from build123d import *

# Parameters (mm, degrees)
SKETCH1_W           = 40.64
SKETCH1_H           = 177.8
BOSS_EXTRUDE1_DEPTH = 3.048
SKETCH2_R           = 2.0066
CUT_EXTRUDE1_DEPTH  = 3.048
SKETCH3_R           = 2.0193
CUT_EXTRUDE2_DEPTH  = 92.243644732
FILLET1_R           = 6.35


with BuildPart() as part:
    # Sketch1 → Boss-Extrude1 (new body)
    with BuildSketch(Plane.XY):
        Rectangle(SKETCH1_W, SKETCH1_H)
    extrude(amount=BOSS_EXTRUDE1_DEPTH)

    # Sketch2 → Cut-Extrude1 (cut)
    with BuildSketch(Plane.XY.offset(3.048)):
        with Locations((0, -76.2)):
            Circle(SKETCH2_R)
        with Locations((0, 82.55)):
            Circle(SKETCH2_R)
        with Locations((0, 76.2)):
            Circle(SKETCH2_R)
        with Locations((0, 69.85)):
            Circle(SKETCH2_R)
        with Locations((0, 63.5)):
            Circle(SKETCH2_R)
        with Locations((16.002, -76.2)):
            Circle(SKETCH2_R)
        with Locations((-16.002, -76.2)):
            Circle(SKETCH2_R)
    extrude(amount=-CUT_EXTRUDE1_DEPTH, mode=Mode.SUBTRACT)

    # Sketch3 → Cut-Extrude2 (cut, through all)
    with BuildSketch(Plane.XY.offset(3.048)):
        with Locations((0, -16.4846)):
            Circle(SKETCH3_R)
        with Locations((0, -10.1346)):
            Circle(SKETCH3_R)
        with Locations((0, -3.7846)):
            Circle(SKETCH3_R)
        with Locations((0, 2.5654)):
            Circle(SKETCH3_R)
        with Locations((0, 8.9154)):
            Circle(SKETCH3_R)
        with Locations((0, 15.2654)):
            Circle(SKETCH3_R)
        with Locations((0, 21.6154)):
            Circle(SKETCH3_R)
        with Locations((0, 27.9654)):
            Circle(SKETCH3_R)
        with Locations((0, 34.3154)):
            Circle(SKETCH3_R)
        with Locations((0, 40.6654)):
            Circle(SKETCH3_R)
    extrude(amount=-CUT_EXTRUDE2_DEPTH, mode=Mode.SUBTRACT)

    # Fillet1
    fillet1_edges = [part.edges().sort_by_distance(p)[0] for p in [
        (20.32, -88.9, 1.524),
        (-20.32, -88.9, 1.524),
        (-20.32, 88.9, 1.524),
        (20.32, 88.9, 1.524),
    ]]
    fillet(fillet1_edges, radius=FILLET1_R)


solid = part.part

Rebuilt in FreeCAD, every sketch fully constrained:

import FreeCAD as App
import Part
import Sketcher

V = App.Vector
Q = App.Units.Quantity


def edges_at(feature, points):
    """Names of the edges that pass closest to the given points."""
    edges = feature.Shape.Edges
    near = lambda p: min(range(len(edges)), key=lambda i: edges[i].distToShape(Part.Vertex(*p))[0])
    return sorted({f"Edge{near(p) + 1}" for p in points})

doc = App.newDocument("Part")
body = doc.addObject("PartDesign::Body", "Body")

# Sketch on XY plane
sketch1 = doc.addObject("Sketcher::SketchObject", "Sketch")
body.addObject(sketch1)
sketch1.AttachmentSupport = (doc.XY_Plane, [""])
sketch1.MapMode = "FlatFace"
sketch1.addGeometry(Part.LineSegment(V(-20.32, 88.9, 0), V(-20.32, -88.9, 0)), False)
sketch1.addGeometry(Part.LineSegment(V(-20.32, -88.9, 0), V(20.32, -88.9, 0)), False)
sketch1.addGeometry(Part.LineSegment(V(20.32, -88.9, 0), V(20.32, 88.9, 0)), False)
sketch1.addGeometry(Part.LineSegment(V(20.32, 88.9, 0), V(-20.32, 88.9, 0)), False)
sketch1.addConstraint(Sketcher.Constraint("Coincident", 0, 2, 1, 1))
sketch1.addConstraint(Sketcher.Constraint("Coincident", 1, 2, 2, 1))
sketch1.addConstraint(Sketcher.Constraint("Coincident", 2, 2, 3, 1))
sketch1.addConstraint(Sketcher.Constraint("Coincident", 3, 2, 0, 1))
sketch1.addConstraint(Sketcher.Constraint("Vertical", 0))
sketch1.addConstraint(Sketcher.Constraint("Horizontal", 1))
sketch1.addConstraint(Sketcher.Constraint("Vertical", 2))
sketch1.addConstraint(Sketcher.Constraint("Horizontal", 3))
sketch1.addConstraint(Sketcher.Constraint("Symmetric", 0, 2, 2, 2, -1, 1))
sketch1.addConstraint(Sketcher.Constraint("DistanceY", 0, 2, 0, 1, Q("7 in")))
sketch1.addConstraint(Sketcher.Constraint("DistanceX", 1, 1, 1, 2, Q("1.6 in")))
pad1 = doc.addObject("PartDesign::Pad", "Pad")
body.addObject(pad1)
pad1.Profile = sketch1
pad1.Length = Q("0.12 in")

# Sketch on XY plane
sketch2 = doc.addObject("Sketcher::SketchObject", "Sketch001")
body.addObject(sketch2)
sketch2.AttachmentSupport = (doc.XY_Plane, [""])
sketch2.MapMode = "FlatFace"
sketch2.AttachmentOffset = App.Placement(V(0, 0, 0.12 * 25.4), App.Rotation())
sketch2.addGeometry(Part.Circle(V(0, -76.2, 0), V(0, 0, 1), 2.0066), False)
sketch2.addGeometry(Part.Circle(V(0, 82.55, 0), V(0, 0, 1), 2.0066), False)
sketch2.addGeometry(Part.Circle(V(0, 76.2, 0), V(0, 0, 1), 2.0066), False)
sketch2.addGeometry(Part.Circle(V(0, 69.85, 0), V(0, 0, 1), 2.0066), False)
sketch2.addGeometry(Part.Circle(V(0, 63.5, 0), V(0, 0, 1), 2.0066), False)
sketch2.addGeometry(Part.Circle(V(16.002, -76.2, 0), V(0, 0, 1), 2.0066), False)
sketch2.addGeometry(Part.Circle(V(-16.002, -76.2, 0), V(0, 0, 1), 2.0066), False)
sketch2.addConstraint(Sketcher.Constraint("Equal", 0, 1))
sketch2.addConstraint(Sketcher.Constraint("Equal", 1, 2))
sketch2.addConstraint(Sketcher.Constraint("Equal", 2, 3))
sketch2.addConstraint(Sketcher.Constraint("Equal", 3, 4))
sketch2.addConstraint(Sketcher.Constraint("Equal", 4, 5))
sketch2.addConstraint(Sketcher.Constraint("Equal", 5, 6))
sketch2.addConstraint(Sketcher.Constraint("Symmetric", 0, 3, 2, 3, -1, 1))
sketch2.addConstraint(Sketcher.Constraint("Symmetric", 5, 3, 6, 3, -2))
sketch2.addConstraint(Sketcher.Constraint("PointOnObject", 0, 3, -2))
sketch2.addConstraint(Sketcher.Constraint("PointOnObject", 1, 3, -2))
sketch2.addConstraint(Sketcher.Constraint("PointOnObject", 3, 3, -2))
sketch2.addConstraint(Sketcher.Constraint("PointOnObject", 4, 3, -2))
sketch2.addConstraint(Sketcher.Constraint("Horizontal", 0, 3, 5, 3))
sketch2.addConstraint(Sketcher.Constraint("Diameter", 0, Q("0.158 in")))
sketch2.addConstraint(Sketcher.Constraint("DistanceY", 0, 3, -1, 1, Q("3 in")))
sketch2.addConstraint(Sketcher.Constraint("DistanceY", -1, 1, 4, 3, Q("2.5 in")))
sketch2.addConstraint(Sketcher.Constraint("DistanceY", 3, 3, 1, 3, Q("0.5 in")))
sketch2.addConstraint(Sketcher.Constraint("DistanceY", -1, 1, 1, 3, Q("3.25 in")))
sketch2.addConstraint(Sketcher.Constraint("DistanceX", -1, 1, 5, 3, Q("0.63 in")))
pocket1 = doc.addObject("PartDesign::Pocket", "Pocket")
body.addObject(pocket1)
pocket1.Profile = sketch2
pocket1.Length = Q("0.12 in")

# Sketch on XY plane
sketch3 = doc.addObject("Sketcher::SketchObject", "Sketch002")
body.addObject(sketch3)
sketch3.AttachmentSupport = (doc.XY_Plane, [""])
sketch3.MapMode = "FlatFace"
sketch3.AttachmentOffset = App.Placement(V(0, 0, 0.12 * 25.4), App.Rotation())
sketch3.addGeometry(Part.Circle(V(0, -16.4846, 0), V(0, 0, 1), 2.0193), False)
sketch3.addGeometry(Part.Circle(V(0, -10.1346, 0), V(0, 0, 1), 2.0193), False)
sketch3.addGeometry(Part.Circle(V(0, -3.7846, 0), V(0, 0, 1), 2.0193), False)
sketch3.addGeometry(Part.Circle(V(0, 2.5654, 0), V(0, 0, 1), 2.0193), False)
sketch3.addGeometry(Part.Circle(V(0, 8.9154, 0), V(0, 0, 1), 2.0193), False)
sketch3.addGeometry(Part.Circle(V(0, 15.2654, 0), V(0, 0, 1), 2.0193), False)
sketch3.addGeometry(Part.Circle(V(0, 21.6154, 0), V(0, 0, 1), 2.0193), False)
sketch3.addGeometry(Part.Circle(V(0, 27.9654, 0), V(0, 0, 1), 2.0193), False)
sketch3.addGeometry(Part.Circle(V(0, 34.3154, 0), V(0, 0, 1), 2.0193), False)
sketch3.addGeometry(Part.Circle(V(0, 40.6654, 0), V(0, 0, 1), 2.0193), False)
sketch3.addConstraint(Sketcher.Constraint("Equal", 0, 1))
sketch3.addConstraint(Sketcher.Constraint("Equal", 1, 2))
sketch3.addConstraint(Sketcher.Constraint("Equal", 2, 3))
sketch3.addConstraint(Sketcher.Constraint("Equal", 3, 4))
sketch3.addConstraint(Sketcher.Constraint("Equal", 4, 5))
sketch3.addConstraint(Sketcher.Constraint("Equal", 5, 6))
sketch3.addConstraint(Sketcher.Constraint("Equal", 6, 7))
sketch3.addConstraint(Sketcher.Constraint("Equal", 7, 8))
sketch3.addConstraint(Sketcher.Constraint("Equal", 8, 9))
sketch3.addConstraint(Sketcher.Constraint("PointOnObject", 0, 3, -2))
sketch3.addConstraint(Sketcher.Constraint("PointOnObject", 1, 3, -2))
sketch3.addConstraint(Sketcher.Constraint("PointOnObject", 2, 3, -2))
sketch3.addConstraint(Sketcher.Constraint("PointOnObject", 3, 3, -2))
sketch3.addConstraint(Sketcher.Constraint("PointOnObject", 4, 3, -2))
sketch3.addConstraint(Sketcher.Constraint("PointOnObject", 5, 3, -2))
sketch3.addConstraint(Sketcher.Constraint("PointOnObject", 6, 3, -2))
sketch3.addConstraint(Sketcher.Constraint("PointOnObject", 7, 3, -2))
sketch3.addConstraint(Sketcher.Constraint("PointOnObject", 8, 3, -2))
sketch3.addConstraint(Sketcher.Constraint("PointOnObject", 9, 3, -2))
sketch3.addConstraint(Sketcher.Constraint("Diameter", 0, Q("0.159 in")))
sketch3.addConstraint(Sketcher.Constraint("DistanceY", 0, 3, 4, 3, Q("1 in")))
sketch3.addConstraint(Sketcher.Constraint("DistanceY", 1, 3, 5, 3, Q("1 in")))
sketch3.addConstraint(Sketcher.Constraint("DistanceY", 2, 3, 6, 3, Q("1 in")))
sketch3.addConstraint(Sketcher.Constraint("DistanceY", 3, 3, 7, 3, Q("1 in")))
sketch3.addConstraint(Sketcher.Constraint("DistanceY", 4, 3, 8, 3, Q("1 in")))
sketch3.addConstraint(Sketcher.Constraint("DistanceY", 5, 3, 9, 3, Q("1 in")))
sketch3.addConstraint(Sketcher.Constraint("DistanceY", 0, 3, 2, 3, Q("0.5 in")))
sketch3.addConstraint(Sketcher.Constraint("DistanceY", 1, 3, 3, 3, Q("0.5 in")))
sketch3.addConstraint(Sketcher.Constraint("DistanceY", 0, 3, 1, 3, Q("0.25 in")))
sketch3.addConstraint(Sketcher.Constraint("DistanceY", 0, 3, -1, 1, Q("0.649 in")))
pocket2 = doc.addObject("PartDesign::Pocket", "Pocket001")
body.addObject(pocket2)
pocket2.Profile = sketch3
pocket2.Type = "ThroughAll"
doc.recompute()

fillet = doc.addObject("PartDesign::Fillet", "Fillet")
body.addObject(fillet)
fillet.Base = (pocket2, edges_at(pocket2, [
    (20.32, -88.9, 1.524),
    (-20.32, -88.9, 1.524),
    (-20.32, 88.9, 1.524),
    (20.32, 88.9, 1.524),
]))
fillet.Radius = Q("0.25 in")

doc.recompute()
